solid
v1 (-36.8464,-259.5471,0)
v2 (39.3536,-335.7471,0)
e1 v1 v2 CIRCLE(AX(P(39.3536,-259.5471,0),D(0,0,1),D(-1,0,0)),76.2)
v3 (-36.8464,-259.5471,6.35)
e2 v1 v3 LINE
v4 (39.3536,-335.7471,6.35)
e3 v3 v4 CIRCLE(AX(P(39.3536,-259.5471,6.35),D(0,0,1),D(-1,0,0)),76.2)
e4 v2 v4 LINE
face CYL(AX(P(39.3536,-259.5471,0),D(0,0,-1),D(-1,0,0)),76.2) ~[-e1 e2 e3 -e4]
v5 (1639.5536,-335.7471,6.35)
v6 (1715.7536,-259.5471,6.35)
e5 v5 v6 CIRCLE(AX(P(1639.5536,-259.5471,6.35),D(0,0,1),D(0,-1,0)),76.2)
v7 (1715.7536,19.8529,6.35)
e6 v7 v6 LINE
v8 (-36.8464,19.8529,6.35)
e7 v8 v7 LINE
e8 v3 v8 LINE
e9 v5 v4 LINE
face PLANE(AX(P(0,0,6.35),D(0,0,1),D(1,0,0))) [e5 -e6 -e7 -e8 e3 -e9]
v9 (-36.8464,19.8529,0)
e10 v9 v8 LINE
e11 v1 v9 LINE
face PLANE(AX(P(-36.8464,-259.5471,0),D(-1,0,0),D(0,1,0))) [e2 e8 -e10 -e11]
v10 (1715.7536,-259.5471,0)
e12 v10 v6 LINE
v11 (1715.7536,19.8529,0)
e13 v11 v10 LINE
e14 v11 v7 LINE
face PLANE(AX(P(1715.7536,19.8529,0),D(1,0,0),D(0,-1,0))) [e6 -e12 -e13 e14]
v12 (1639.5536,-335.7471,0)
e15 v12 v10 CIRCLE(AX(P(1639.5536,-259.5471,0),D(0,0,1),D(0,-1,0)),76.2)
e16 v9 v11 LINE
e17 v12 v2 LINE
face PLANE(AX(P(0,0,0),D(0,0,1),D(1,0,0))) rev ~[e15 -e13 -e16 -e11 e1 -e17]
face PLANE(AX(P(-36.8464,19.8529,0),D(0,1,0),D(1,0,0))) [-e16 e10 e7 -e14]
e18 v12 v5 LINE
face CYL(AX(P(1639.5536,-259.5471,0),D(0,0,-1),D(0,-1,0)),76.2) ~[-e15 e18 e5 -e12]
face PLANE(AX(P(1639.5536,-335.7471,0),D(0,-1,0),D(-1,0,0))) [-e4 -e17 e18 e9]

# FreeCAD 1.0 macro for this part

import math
import FreeCAD as App
import Part
import Sketcher
from FreeCAD import Vector
Q = App.Units.Quantity

doc = App.newDocument("Part")
body = doc.addObject("PartDesign::Body", "Body")

# Sketch on XY plane
sketch1 = body.newObject("Sketcher::SketchObject", "Sketch")
sketch1.AttachmentSupport = (doc.getObject("XY_Plane"), [""])
sketch1.MapMode = "FlatFace"
sketch1.addGeometry(Part.LineSegment(Vector(1715.7536, 19.8529, 0), Vector(-36.8464, 19.8529, 0)), False)
sketch1.addGeometry(Part.LineSegment(Vector(-36.8464, 19.8529, 0), Vector(-36.8464, -259.5471, 0)), False)
sketch1.addGeometry(Part.ArcOfCircle(Part.Circle(Vector(39.3536, -259.5471, 0), Vector(0, 0, 1), 76.2), math.radians(180), math.radians(270)), False)
sketch1.addGeometry(Part.LineSegment(Vector(39.3536, -335.7471, 0), Vector(1639.5536, -335.7471, 0)), False)
sketch1.addGeometry(Part.ArcOfCircle(Part.Circle(Vector(1639.5536, -259.5471, 0), Vector(0, 0, 1), 76.2), math.radians(-90), math.radians(0)), False)
sketch1.addGeometry(Part.LineSegment(Vector(1715.7536, -259.5471, 0), Vector(1715.7536, 19.8529, 0)), False)
sketch1.addConstraint(Sketcher.Constraint("Coincident", 0, 2, 1, 1))
sketch1.addConstraint(Sketcher.Constraint("Tangent", 1, 2, 2, 1))
sketch1.addConstraint(Sketcher.Constraint("Tangent", 2, 2, 3, 1))
sketch1.addConstraint(Sketcher.Constraint("Tangent", 3, 2, 4, 1))
sketch1.addConstraint(Sketcher.Constraint("Tangent", 4, 2, 5, 1))
sketch1.addConstraint(Sketcher.Constraint("Coincident", 5, 2, 0, 1))
sketch1.addConstraint(Sketcher.Constraint("Horizontal", 0))
sketch1.addConstraint(Sketcher.Constraint("Vertical", 1))
sketch1.addConstraint(Sketcher.Constraint("Horizontal", 3))
sketch1.addConstraint(Sketcher.Constraint("Vertical", 5))
sketch1.addConstraint(Sketcher.Constraint("Equal", 2, 4))
sketch1.addConstraint(Sketcher.Constraint("Radius", 2, Q("3 in")))
sketch1.addConstraint(Sketcher.Constraint("DistanceX", 0, 2, 0, 1, Q("69 in")))
sketch1.addConstraint(Sketcher.Constraint("DistanceY", 2, 2, 0, 2, Q("14 in")))
sketch1.addConstraint(Sketcher.Constraint("DistanceY", 2, 3, -1, 1, Q("10.2184 in")))
sketch1.addConstraint(Sketcher.Constraint("DistanceX", -1, 1, 2, 3, 39.3536))
pad1 = body.newObject("PartDesign::Pad", "Pad")
pad1.Profile = sketch1
pad1.Length = Q("0.25 in")

doc.recompute()
